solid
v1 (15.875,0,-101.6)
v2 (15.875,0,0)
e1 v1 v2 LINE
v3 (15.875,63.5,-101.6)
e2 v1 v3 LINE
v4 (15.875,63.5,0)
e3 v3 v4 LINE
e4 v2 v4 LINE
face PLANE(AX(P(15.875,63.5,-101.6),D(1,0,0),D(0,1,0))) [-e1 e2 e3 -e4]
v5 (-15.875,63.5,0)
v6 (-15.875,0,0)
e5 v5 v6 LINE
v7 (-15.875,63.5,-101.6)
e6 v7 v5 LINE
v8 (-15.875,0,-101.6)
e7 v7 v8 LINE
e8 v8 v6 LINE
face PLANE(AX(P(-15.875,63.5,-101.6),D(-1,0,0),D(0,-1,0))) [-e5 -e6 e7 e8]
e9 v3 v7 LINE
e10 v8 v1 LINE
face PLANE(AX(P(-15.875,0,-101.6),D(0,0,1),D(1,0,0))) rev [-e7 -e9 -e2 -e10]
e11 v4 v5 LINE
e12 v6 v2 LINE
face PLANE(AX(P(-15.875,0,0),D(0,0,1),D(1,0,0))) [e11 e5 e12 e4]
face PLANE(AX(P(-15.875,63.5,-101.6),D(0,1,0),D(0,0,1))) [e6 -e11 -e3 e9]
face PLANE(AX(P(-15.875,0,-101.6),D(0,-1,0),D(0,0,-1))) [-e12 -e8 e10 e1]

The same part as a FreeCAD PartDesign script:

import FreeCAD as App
import Part
import Sketcher
Q = App.Units.Quantity


def add_polygon(sketch, points):
    """Adds a closed chain of lines whose ends are joined by coincident constraints."""
    first, n = sketch.GeometryCount, len(points)
    for a, b in zip(points, points[1:] + points[:1]):
        sketch.addGeometry(Part.LineSegment(App.Vector(*a, 0), App.Vector(*b, 0)), False)
    for i in range(n):
        sketch.addConstraint(Sketcher.Constraint("Coincident", first + i, 2, first + (i + 1) % n, 1))

doc = App.newDocument("Part")
body = doc.addObject("PartDesign::Body", "Body")

# Sketch on XY plane
sketch1 = doc.addObject("Sketcher::SketchObject", "Sketch")
body.addObject(sketch1)
sketch1.AttachmentSupport = (doc.XY_Plane, [""])
sketch1.MapMode = "FlatFace"
add_polygon(sketch1, [(-16, 64), (-16, 0), (16, 0), (16, 64)])  # lines 0-3
sketch1.addConstraint(Sketcher.Constraint("Vertical", 0))
sketch1.addConstraint(Sketcher.Constraint("Horizontal", 1))
sketch1.addConstraint(Sketcher.Constraint("Vertical", 2))
sketch1.addConstraint(Sketcher.Constraint("Horizontal", 3))
sketch1.addConstraint(Sketcher.Constraint("Symmetric", 0, 2, 1, 2, -1, 1))
sketch1.addConstraint(Sketcher.Constraint("DistanceY", 0, 2, 0, 1, Q("2.5 in")))
sketch1.addConstraint(Sketcher.Constraint("DistanceX", 1, 1, 1, 2, Q("1.25 in")))
pad1 = doc.addObject("PartDesign::Pad", "Pad")
body.addObject(pad1)
pad1.Profile = sketch1
pad1.Length = Q("4 in")
pad1.Reversed = True

doc.recompute()
